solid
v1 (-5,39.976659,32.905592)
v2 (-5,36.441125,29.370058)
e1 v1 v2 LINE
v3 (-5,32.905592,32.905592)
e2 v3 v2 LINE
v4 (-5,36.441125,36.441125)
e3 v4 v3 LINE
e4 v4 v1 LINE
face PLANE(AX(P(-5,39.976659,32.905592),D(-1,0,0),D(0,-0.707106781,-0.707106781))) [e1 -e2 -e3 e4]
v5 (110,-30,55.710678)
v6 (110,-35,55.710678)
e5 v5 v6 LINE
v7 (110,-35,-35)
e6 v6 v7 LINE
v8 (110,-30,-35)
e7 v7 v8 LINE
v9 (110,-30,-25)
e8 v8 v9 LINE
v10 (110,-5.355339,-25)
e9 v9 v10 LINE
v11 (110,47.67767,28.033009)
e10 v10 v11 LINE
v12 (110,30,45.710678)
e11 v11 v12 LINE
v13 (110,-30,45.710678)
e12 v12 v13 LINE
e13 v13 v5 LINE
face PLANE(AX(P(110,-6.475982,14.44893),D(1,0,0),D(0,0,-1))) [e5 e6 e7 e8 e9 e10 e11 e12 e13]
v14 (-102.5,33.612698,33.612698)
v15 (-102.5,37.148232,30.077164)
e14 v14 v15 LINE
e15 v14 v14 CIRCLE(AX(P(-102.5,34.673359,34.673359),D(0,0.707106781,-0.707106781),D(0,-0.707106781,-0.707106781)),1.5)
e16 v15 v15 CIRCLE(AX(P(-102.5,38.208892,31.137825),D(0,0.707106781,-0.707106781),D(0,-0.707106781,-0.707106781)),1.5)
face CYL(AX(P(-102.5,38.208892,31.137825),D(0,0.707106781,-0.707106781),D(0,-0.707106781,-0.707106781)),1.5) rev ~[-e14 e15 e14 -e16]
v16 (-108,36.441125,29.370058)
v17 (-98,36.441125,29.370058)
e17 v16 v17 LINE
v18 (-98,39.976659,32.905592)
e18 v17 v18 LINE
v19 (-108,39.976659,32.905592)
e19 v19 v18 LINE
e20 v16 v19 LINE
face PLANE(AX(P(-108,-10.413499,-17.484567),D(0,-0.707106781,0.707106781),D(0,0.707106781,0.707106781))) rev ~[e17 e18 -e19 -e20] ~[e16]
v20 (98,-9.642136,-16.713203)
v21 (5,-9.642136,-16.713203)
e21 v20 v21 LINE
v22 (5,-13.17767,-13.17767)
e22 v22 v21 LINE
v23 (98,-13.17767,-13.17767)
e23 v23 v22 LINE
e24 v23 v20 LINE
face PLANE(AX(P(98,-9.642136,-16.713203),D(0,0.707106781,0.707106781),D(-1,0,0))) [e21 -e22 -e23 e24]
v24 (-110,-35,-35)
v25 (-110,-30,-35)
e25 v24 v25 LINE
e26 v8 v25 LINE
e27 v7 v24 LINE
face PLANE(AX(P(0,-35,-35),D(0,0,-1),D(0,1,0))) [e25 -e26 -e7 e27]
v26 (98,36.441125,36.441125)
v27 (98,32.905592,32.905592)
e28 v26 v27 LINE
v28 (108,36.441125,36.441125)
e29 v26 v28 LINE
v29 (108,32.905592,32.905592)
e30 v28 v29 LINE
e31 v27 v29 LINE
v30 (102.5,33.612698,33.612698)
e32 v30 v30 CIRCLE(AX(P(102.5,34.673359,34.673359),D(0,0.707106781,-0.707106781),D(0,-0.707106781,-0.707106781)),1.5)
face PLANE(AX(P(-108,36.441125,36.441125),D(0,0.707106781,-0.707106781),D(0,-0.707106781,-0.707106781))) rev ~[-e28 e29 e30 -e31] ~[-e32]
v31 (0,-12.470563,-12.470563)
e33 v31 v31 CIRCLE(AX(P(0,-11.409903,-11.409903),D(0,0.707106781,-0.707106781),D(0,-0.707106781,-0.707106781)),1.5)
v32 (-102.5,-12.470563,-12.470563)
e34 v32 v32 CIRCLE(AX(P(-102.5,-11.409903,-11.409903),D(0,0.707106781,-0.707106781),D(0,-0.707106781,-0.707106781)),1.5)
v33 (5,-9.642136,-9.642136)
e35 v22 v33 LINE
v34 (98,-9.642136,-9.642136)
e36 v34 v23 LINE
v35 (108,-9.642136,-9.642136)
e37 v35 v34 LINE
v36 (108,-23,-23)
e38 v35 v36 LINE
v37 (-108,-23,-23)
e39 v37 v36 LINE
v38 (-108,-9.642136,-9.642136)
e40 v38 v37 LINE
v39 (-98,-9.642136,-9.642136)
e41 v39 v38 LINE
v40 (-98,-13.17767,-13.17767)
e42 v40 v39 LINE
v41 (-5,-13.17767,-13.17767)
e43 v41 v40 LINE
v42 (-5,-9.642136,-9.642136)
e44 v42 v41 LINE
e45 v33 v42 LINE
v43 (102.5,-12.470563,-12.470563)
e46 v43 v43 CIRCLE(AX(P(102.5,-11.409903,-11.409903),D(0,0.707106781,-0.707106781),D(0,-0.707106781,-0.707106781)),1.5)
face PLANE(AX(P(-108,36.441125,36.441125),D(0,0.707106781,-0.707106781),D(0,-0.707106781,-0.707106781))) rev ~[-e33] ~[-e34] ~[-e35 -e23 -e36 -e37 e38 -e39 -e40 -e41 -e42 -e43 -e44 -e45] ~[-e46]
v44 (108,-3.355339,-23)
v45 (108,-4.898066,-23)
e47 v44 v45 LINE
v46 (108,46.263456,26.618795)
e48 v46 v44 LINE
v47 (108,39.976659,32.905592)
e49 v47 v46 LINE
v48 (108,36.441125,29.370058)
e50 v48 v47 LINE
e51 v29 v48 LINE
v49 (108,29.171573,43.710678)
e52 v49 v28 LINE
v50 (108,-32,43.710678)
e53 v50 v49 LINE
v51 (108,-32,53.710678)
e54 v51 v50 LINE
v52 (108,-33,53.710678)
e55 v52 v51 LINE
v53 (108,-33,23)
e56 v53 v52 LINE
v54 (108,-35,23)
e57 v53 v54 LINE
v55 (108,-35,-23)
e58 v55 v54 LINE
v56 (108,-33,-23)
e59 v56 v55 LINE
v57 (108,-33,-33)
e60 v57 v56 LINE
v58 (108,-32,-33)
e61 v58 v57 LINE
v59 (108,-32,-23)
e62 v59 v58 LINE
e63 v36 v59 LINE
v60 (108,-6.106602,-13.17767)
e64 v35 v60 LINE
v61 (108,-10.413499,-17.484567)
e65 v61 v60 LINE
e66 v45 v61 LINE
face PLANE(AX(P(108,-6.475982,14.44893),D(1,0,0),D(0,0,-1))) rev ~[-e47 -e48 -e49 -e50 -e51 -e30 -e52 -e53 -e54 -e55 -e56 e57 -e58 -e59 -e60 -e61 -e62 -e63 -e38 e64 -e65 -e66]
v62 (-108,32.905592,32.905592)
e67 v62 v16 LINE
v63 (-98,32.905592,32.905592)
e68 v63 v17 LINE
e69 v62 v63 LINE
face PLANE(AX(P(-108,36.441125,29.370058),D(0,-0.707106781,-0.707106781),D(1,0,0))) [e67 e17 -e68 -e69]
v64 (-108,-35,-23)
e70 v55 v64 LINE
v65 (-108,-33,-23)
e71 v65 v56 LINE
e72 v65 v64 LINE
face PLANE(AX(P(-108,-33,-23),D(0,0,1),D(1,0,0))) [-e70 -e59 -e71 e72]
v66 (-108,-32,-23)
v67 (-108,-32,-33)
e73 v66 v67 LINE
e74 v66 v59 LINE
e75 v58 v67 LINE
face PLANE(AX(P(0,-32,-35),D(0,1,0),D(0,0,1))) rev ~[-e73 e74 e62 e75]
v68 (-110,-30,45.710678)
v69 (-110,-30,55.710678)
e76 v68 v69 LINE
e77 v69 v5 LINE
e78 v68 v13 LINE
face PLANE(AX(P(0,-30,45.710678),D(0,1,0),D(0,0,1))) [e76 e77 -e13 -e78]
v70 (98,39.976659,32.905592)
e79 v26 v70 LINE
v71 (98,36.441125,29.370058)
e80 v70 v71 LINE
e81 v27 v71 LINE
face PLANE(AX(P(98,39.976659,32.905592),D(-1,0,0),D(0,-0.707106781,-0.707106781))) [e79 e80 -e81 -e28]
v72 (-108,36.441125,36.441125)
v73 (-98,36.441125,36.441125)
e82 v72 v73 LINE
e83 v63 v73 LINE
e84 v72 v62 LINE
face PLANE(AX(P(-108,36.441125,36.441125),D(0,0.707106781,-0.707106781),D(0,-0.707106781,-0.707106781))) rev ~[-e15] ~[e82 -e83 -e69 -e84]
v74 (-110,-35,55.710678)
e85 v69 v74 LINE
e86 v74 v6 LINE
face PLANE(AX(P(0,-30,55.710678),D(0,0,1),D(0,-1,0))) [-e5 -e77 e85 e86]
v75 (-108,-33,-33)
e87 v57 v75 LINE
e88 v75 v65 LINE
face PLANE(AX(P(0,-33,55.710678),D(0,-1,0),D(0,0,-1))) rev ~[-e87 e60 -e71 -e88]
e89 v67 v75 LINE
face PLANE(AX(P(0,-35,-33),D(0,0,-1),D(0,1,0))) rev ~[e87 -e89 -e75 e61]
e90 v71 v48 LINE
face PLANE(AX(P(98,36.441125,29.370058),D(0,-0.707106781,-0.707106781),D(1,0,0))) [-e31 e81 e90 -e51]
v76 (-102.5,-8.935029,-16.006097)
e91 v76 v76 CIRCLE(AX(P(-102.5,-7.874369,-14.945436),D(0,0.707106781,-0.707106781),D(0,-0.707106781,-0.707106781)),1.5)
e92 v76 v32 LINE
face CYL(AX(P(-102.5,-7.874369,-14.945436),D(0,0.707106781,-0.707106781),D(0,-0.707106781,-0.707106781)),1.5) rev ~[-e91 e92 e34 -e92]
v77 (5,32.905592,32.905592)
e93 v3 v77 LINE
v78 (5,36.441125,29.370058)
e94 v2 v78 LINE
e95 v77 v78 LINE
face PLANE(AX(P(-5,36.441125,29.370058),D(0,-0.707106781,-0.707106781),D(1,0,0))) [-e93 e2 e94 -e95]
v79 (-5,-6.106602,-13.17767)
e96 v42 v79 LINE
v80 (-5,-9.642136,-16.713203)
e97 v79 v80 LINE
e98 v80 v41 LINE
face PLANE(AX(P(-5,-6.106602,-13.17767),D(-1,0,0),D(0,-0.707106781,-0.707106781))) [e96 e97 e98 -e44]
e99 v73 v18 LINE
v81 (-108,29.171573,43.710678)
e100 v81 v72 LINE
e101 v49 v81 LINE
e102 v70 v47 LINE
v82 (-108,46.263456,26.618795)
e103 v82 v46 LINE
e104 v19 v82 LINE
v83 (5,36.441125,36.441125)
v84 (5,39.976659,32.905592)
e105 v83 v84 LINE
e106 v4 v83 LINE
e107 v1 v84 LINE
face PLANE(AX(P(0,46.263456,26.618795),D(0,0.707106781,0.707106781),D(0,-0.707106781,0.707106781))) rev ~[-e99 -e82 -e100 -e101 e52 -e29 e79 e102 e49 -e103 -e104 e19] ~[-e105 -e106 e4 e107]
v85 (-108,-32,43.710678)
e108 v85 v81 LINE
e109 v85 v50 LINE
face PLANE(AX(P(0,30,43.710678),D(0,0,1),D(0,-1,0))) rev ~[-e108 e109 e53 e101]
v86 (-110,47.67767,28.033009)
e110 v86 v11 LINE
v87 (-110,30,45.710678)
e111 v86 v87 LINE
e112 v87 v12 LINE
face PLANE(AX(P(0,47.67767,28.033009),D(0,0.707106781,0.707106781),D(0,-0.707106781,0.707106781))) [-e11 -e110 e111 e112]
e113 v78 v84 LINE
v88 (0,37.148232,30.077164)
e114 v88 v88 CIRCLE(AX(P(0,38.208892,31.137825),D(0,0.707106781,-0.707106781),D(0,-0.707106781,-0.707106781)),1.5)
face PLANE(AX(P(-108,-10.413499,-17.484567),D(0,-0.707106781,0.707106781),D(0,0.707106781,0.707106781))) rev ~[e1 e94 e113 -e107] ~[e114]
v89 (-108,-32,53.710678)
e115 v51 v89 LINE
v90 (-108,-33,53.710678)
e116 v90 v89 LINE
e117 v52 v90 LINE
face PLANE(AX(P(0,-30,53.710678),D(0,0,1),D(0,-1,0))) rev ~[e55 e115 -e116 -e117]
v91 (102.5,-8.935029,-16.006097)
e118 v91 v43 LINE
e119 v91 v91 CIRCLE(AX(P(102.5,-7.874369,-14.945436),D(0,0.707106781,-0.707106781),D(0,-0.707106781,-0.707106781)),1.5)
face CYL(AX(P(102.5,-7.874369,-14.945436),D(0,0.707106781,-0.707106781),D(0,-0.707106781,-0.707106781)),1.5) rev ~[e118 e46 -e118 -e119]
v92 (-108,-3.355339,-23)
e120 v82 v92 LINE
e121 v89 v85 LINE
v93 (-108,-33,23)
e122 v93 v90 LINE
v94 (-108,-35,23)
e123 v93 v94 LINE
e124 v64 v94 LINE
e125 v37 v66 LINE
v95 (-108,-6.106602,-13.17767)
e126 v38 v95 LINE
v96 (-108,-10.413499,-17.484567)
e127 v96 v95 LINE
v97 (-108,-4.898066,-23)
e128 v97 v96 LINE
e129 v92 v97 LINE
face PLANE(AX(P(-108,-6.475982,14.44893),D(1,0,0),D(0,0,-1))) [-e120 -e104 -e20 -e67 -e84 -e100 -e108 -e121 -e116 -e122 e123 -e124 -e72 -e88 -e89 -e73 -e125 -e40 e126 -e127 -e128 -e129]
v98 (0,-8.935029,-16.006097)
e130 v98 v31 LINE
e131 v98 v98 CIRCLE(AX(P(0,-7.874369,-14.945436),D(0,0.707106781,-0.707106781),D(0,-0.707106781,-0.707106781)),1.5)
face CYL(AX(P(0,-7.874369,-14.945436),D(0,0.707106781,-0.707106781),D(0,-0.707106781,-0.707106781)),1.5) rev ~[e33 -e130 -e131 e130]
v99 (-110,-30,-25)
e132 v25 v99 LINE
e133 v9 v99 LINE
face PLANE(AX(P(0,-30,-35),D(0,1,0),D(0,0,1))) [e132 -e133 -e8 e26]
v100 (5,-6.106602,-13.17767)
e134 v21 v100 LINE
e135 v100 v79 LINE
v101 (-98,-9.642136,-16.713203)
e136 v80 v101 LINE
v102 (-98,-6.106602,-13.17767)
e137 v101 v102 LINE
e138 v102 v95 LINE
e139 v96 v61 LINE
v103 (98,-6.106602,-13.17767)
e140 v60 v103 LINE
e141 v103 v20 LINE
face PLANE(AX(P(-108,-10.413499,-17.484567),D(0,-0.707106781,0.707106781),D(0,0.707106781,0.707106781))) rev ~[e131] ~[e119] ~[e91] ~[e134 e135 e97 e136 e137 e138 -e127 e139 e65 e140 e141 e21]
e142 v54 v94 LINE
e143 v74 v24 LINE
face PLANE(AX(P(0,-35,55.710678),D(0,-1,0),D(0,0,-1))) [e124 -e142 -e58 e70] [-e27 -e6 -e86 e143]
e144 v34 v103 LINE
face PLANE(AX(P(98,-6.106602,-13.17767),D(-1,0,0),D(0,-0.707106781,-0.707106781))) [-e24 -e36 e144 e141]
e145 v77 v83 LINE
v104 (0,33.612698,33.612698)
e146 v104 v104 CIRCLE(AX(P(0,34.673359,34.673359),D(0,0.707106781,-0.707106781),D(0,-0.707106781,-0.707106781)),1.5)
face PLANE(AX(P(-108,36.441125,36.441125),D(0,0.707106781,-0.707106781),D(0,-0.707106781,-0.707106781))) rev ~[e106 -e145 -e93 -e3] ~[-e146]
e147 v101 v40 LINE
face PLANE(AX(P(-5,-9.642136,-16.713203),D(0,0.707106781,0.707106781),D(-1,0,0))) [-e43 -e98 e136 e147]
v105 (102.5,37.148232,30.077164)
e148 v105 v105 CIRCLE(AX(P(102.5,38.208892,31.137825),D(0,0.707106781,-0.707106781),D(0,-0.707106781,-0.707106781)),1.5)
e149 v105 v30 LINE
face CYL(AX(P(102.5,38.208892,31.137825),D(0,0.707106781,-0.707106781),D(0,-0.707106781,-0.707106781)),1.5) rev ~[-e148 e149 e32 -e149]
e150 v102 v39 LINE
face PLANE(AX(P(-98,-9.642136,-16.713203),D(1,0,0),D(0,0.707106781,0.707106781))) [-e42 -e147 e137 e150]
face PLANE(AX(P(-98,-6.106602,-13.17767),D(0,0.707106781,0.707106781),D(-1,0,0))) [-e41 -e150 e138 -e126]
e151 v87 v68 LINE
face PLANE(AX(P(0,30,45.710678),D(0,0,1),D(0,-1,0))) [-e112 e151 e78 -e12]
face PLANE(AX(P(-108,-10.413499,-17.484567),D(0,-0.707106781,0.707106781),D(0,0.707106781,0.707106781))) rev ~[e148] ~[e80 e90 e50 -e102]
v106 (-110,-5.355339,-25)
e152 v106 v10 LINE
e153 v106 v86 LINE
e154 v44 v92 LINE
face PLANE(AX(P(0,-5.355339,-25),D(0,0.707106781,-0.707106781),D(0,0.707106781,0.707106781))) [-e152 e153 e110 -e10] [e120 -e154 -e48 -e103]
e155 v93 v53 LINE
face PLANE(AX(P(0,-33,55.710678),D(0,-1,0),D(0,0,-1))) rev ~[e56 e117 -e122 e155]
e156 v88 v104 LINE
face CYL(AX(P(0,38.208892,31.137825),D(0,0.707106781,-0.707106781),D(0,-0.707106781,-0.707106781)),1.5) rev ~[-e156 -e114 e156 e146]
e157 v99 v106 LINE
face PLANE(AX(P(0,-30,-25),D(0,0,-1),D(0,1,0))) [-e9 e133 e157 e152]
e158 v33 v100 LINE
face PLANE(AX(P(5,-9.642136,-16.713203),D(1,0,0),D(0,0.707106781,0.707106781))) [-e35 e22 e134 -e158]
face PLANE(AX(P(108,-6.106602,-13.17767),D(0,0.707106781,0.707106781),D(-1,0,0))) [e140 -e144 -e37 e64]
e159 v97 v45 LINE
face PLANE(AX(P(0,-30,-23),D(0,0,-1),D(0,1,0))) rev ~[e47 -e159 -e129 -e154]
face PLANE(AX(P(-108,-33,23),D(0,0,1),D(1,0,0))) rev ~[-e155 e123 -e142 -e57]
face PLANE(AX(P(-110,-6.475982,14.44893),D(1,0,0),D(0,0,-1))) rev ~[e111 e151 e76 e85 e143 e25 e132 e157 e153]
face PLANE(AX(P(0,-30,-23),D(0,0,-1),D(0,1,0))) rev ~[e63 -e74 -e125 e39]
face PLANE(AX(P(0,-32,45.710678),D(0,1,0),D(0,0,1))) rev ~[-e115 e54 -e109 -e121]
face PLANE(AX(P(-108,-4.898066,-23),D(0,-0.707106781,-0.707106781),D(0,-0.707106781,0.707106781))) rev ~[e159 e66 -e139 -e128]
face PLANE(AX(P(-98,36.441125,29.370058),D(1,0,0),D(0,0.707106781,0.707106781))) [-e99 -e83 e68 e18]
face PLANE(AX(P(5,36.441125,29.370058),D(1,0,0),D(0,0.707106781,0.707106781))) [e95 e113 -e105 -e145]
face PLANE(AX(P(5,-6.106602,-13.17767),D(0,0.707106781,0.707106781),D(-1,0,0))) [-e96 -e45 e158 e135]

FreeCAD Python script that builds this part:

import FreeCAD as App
import Part
import Sketcher
from FreeCAD import Vector
Q = App.Units.Quantity


def faces_at(feature, points):
    """Names of the faces that lie closest to the given points."""
    faces = feature.Shape.Faces
    near = lambda p: min(range(len(faces)), key=lambda i: faces[i].distToShape(Part.Vertex(*p))[0])
    return sorted({f"Face{near(p) + 1}" for p in points})


def add_polygon(sketch, points):
    """Adds a closed chain of lines whose ends are joined by coincident constraints."""
    first, n = sketch.GeometryCount, len(points)
    for a, b in zip(points, points[1:] + points[:1]):
        sketch.addGeometry(Part.LineSegment(App.Vector(*a, 0), App.Vector(*b, 0)), False)
    for i in range(n):
        sketch.addConstraint(Sketcher.Constraint("Coincident", first + i, 2, first + (i + 1) % n, 1))

doc = App.newDocument("Part")
body = doc.addObject("PartDesign::Body", "Body")

sketch1 = body.newObject("Sketcher::SketchObject", "Sketch")
sketch1.AttachmentSupport = (doc.getObject("YZ_Plane"), [""])
sketch1.MapMode = "FlatFace"
add_polygon(sketch1, [(-30, -25), (-5.355339, -25), (47.67767, 28.033009), (30, 45.710678), (-30, 45.710678), (-30, 55.710678), (-35, 55.710678), (-35, -35), (-30, -35)])
sketch1.addConstraint([
    Sketcher.Constraint("Horizontal", 0),
    Sketcher.Constraint("Horizontal", 3),
    Sketcher.Constraint("Vertical", 4),
    Sketcher.Constraint("Horizontal", 5),
    Sketcher.Constraint("Vertical", 6),
    Sketcher.Constraint("Horizontal", 7),
    Sketcher.Constraint("Vertical", 8),
    Sketcher.Constraint("Perpendicular", 1, 2),
    Sketcher.Constraint("Vertical", 4, 2, 7, 2),
    Sketcher.Constraint("Equal", 4, 8),
    Sketcher.Constraint("DistanceX", 3, 2, 3, 1, 60.0),
    Sketcher.Constraint("DistanceX", 5, 2, 5, 1, 5.0),
    Sketcher.Constraint("DistanceY", 4, 1, 4, 2, 10.0),
    Sketcher.Constraint("Angle", 1, Q("45 deg")),
    Sketcher.Constraint("Distance", 1, 75.0),
    Sketcher.Constraint("Distance", 2, 25.0),
    Sketcher.Constraint("DistanceY", 0, 2, -1, 1, 25.0),
    Sketcher.Constraint("DistanceX", -1, 1, 2, 2, 30.0),
])
pad1 = body.newObject("PartDesign::Pad", "Pad")
pad1.Profile = sketch1
pad1.Length = 220
pad1.Midplane = True
doc.recompute()

thickness = body.newObject("PartDesign::Thickness", "Thickness")
thickness.Base = (pad1, faces_at(pad1, [(0, 21.161, 1.517)]))
thickness.Value = 2
thickness.Reversed = True
thickness.Join = "Intersection"

sketch2 = body.newObject("Sketcher::SketchObject", "Sketch001")
sketch2.AttachmentSupport = (doc.getObject("XZ_Plane"), [""])
sketch2.MapMode = "FlatFace"
sketch2.AttachmentOffset = App.Placement(Vector(0, 0, 33), App.Rotation())
add_polygon(sketch2, [(-108, -23), (-108, 23), (108, 23), (108, -23)])
sketch2.addConstraint([
    Sketcher.Constraint("Vertical", 0),
    Sketcher.Constraint("Horizontal", 1),
    Sketcher.Constraint("Vertical", 2),
    Sketcher.Constraint("Horizontal", 3),
    Sketcher.Constraint("Symmetric", 0, 2, 2, 2, -1, 1),
    Sketcher.Constraint("DistanceX", 1, 1, 1, 2, 216.0),
    Sketcher.Constraint("DistanceY", 0, 1, 0, 2, 46.0),
])
pocket1 = body.newObject("PartDesign::Pocket", "Pocket")
pocket1.Profile = sketch2
pocket1.Length = 10
pocket1.Reversed = True

sketch3 = body.newObject("Sketcher::SketchObject", "Sketch002")
sketch3.AttachmentSupport = (doc.getObject("YZ_Plane"), [""])
sketch3.MapMode = "FlatFace"
sketch3.AttachmentOffset = App.Placement(Vector(0, 0, -108), App.Rotation())
add_polygon(sketch3, [(36.441125, 36.441125), (-23, -23), (-4.898066, -23), (-10.413499, -17.484567), (39.976659, 32.905592)])
sketch3.addConstraint([
    Sketcher.Constraint("Horizontal", 1),
    Sketcher.Constraint("Perpendicular", 0, 2),
    Sketcher.Constraint("Perpendicular", 2, 3),
    Sketcher.Constraint("Perpendicular", 3, 4),
    Sketcher.Constraint("Angle", 0, Q("-135 deg")),
    Sketcher.Constraint("Distance", 4, 5.0),
    Sketcher.Constraint("DistanceX", 0, 2, -1, 1, 23.0),
    Sketcher.Constraint("DistanceY", 0, 2, -1, 1, 23.0),
    Sketcher.Constraint("Distance", 2, 7.8),
    Sketcher.Constraint("DistanceX", -1, 1, 3, 2, 39.976659),
])
pad2 = body.newObject("PartDesign::Pad", "Pad001")
pad2.Profile = sketch3
pad2.Type = "UpToFirst"

sketch4 = body.newObject("Sketcher::SketchObject", "Sketch003")
sketch4.Placement = App.Placement(Vector(0, 3.535534, -3.535534), App.Rotation(Vector(1, 0, 0), Vector(0, -0.707106781, -0.707106781), Vector(0, 0.707106781, -0.707106781), "ZXY"))
add_polygon(sketch4, [(-98, 13.636039), (-108, 13.636039), (-108, -46.535534), (-98, -46.535534), (-98, -51.535534), (-5, -51.535534), (-5, -46.535534), (5, -46.535534), (5, -51.535534), (98, -51.535534), (98, -46.535534), (108, -46.535534), (108, 13.636039), (98, 13.636039), (98, 18.636039), (5, 18.636039), (5, 13.636039), (-5, 13.636039), (-5, 18.636039), (-98, 18.636039)])
sketch4.addGeometry(Part.Circle(Vector(0, 16.136039, 0), Vector(0, 0, 1), 1.5), False)
sketch4.addGeometry(Part.Circle(Vector(-102.5, 16.136039, 0), Vector(0, 0, 1), 1.5), False)
sketch4.addGeometry(Part.Circle(Vector(102.5, 16.136039, 0), Vector(0, 0, 1), 1.5), False)
sketch4.addGeometry(Part.Circle(Vector(102.5, -49.035534, 0), Vector(0, 0, 1), 1.5), False)
sketch4.addGeometry(Part.Circle(Vector(0, -49.035534, 0), Vector(0, 0, 1), 1.5), False)
sketch4.addGeometry(Part.Circle(Vector(-102.5, -49.035534, 0), Vector(0, 0, 1), 1.5), False)
sketch4.addConstraint([
    Sketcher.Constraint("Horizontal", 0),
    Sketcher.Constraint("Vertical", 1),
    Sketcher.Constraint("Horizontal", 2),
    Sketcher.Constraint("Vertical", 3),
    Sketcher.Constraint("Horizontal", 4),
    Sketcher.Constraint("Vertical", 5),
    Sketcher.Constraint("Horizontal", 6),
    Sketcher.Constraint("Vertical", 7),
    Sketcher.Constraint("Horizontal", 8),
    Sketcher.Constraint("Vertical", 9),
    Sketcher.Constraint("Horizontal", 10),
    Sketcher.Constraint("Vertical", 11),
    Sketcher.Constraint("Horizontal", 12),
    Sketcher.Constraint("Vertical", 13),
    Sketcher.Constraint("Horizontal", 14),
    Sketcher.Constraint("Vertical", 15),
    Sketcher.Constraint("Horizontal", 16),
    Sketcher.Constraint("Vertical", 17),
    Sketcher.Constraint("Horizontal", 18),
    Sketcher.Constraint("Vertical", 19),
    Sketcher.Constraint("Equal", 20, 21),
    Sketcher.Constraint("Equal", 21, 22),
    Sketcher.Constraint("Equal", 22, 23),
    Sketcher.Constraint("Equal", 23, 24),
    Sketcher.Constraint("Equal", 24, 25),
    Sketcher.Constraint("Symmetric", 21, 3, 22, 3, -2),
    Sketcher.Constraint("Symmetric", 23, 3, 25, 3, -2),
    Sketcher.Constraint("Symmetric", 4, 2, 7, 2, -2),
    Sketcher.Constraint("Symmetric", 2, 2, 9, 2, -2),
    Sketcher.Constraint("Symmetric", 0, 2, 11, 2, -2),
    Sketcher.Constraint("Symmetric", 14, 2, 17, 2, -2),
    Sketcher.Constraint("PointOnObject", 20, 3, -2),
    Sketcher.Constraint("PointOnObject", 24, 3, -2),
    Sketcher.Constraint("Horizontal", 20, 3, 21, 3),
    Sketcher.Constraint("Horizontal", 23, 3, 24, 3),
    Sketcher.Constraint("Horizontal", 2, 2, 5, 2),
    Sketcher.Constraint("Horizontal", 12, 2, 15, 2),
    Sketcher.Constraint("Vertical", 22, 3, 23, 3),
    Sketcher.Constraint("Vertical", 9, 2, 12, 2),
    Sketcher.Constraint("Vertical", 7, 2, 14, 2),
    Sketcher.Constraint("Vertical", 3, 2, 18, 2),
    Sketcher.Constraint("Equal", 2, 6),
    Sketcher.Constraint("Equal", 9, 13),
    Sketcher.Constraint("Diameter", 20, 3.0),
    Sketcher.Constraint("DistanceX", 0, 2, 0, 1, 10.0),
    Sketcher.Constraint("DistanceX", 4, 1, 4, 2, 93.0),
    Sketcher.Constraint("DistanceY", 3, 2, 3, 1, 5.0),
    Sketcher.Constraint("DistanceX", 21, 3, 22, 3, 205.0),
    Sketcher.Constraint("DistanceY", 0, 2, 21, 3, 2.5),
    Sketcher.Constraint("DistanceY", 25, 3, 1, 2, 2.5),
    Sketcher.Constraint("DistanceY", 1, 2, 1, 1, 60.171573),
    Sketcher.Constraint("DistanceY", -1, 1, 20, 3, 16.136039),
])
pocket2 = body.newObject("PartDesign::Pocket", "Pocket001")
pocket2.Profile = sketch4
pocket2.Length = 10
pocket2.Midplane = True

doc.recompute()
